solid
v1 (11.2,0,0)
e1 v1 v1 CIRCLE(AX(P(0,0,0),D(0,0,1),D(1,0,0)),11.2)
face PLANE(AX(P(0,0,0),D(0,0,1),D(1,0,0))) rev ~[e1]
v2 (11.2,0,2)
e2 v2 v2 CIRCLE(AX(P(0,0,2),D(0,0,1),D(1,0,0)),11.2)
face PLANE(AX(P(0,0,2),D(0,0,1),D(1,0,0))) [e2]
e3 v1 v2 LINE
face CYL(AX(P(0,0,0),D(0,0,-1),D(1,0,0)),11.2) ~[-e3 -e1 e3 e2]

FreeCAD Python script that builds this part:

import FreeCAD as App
import Part
import Sketcher

V = App.Vector
Q = App.Units.Quantity

doc = App.newDocument("Part")
body = doc.addObject("PartDesign::Body", "Body")

sketch1 = doc.addObject("Sketcher::SketchObject", "Sketch")
body.addObject(sketch1)
sketch1.AttachmentSupport = (doc.XY_Plane, [""])
sketch1.MapMode = "FlatFace"
sketch1.addGeometry(Part.Circle(V(0, 0, 0), V(0, 0, 1), 11), False)
sketch1.addConstraint([
    Sketcher.Constraint("Coincident", 0, 3, -1, 1),
    Sketcher.Constraint("Diameter", 0, Q("22.4 mm")),
])
pad1 = doc.addObject("PartDesign::Pad", "Pad")
body.addObject(pad1)
pad1.Profile = sketch1
pad1.Length = 2

sketch2 = doc.addObject("Sketcher::SketchObject", "Sketch001")
body.addObject(sketch2)
sketch2.AttachmentSupport = (doc.XY_Plane, [""])
sketch2.MapMode = "FlatFace"
sketch2.addGeometry([
    Part.BSplineCurve([V(-5.32056, 4.114055, 0), V(-4.9136, 4.604631, 0), V(-4.431978, 5.163606, 0), V(-3.74498, 6.363862, 0), V(-2.817296, 7.147703, 0), V(-1.461046, 8.003489, 0), V(0.139188, 7.709954, 0), V(2.013984, 7.914835, 0), V(3.572615, 6.835672, 0), V(4.265133, 5.295322, 0), V(6.177492, 4.214494, 0), V(3.998277, 2.478094, 0), V(5.98003, 1.419742, 0), V(5.354911, 0.559563, 0), V(4.709981, 0.405762, 0), V(4.722144, -0.527268, 0), V(3.962618, -0.312855, 0), V(3.442351, -0.645484, 0), V(3.028697, -1.023849, 0), V(2.897748, -1.148103, 0)], [4, 1, 1, 1, 1, 1, 1, 1, 1, 1, 1, 1, 1, 1, 1, 1, 1, 4], [0, 1.604462, 2.601677, 3.999722, 5.254782, 7.230732, 8.614185, 10.871856, 12.176321, 13.916604, 15.63386, 17.349297, 17.831592, 18.401429, 19.196574, 19.631196, 20.321228, 21.054471], False, 3, [1, 1, 1, 1, 1, 1, 1, 1, 1, 1, 1, 1, 1, 1, 1, 1, 1, 1, 1, 1], False),
    Part.BSplineCurve([V(-5.32056, 4.114055, 0), V(-5.373669, 4.067405, 0), V(-5.6112, 3.877572, 0), V(-5.131529, 3.612063, 0), V(-5.104622, 3.111812, 0), V(-4.71233, 2.604329, 0), V(-4.909772, 1.962673, 0), V(-5.298794, 1.506942, 0), V(-5.508954, 1.1214, 0), V(-5.65142, 0.714554, 0), V(-4.840464, 0.627859, 0), V(-4.902599, -0.494451, 0), V(-4.012954, -0.372929, 0), V(-3.402062, -0.766293, 0), V(-2.545645, -1.466922, 0), V(-2.44562, -2.743176, 0), V(-2.091251, -3.941679, 0), V(-1.610238, -5.15645, 0), V(-1.63844, -6.629013, 0), V(-0.665331, -8.35731, 0), V(0.791963, -7.599707, 0), V(0.452235, -7.191626, 0), V(0.661797, -6.972875, 0), V(0.896509, -7.097294, 0), V(1.147996, -6.791451, 0), V(1.542098, -6.679791, 0), V(1.505455, -5.946079, 0), V(1.430337, -4.968646, 0), V(2.138784, -4.137713, 0), V(2.096544, -2.975122, 0), V(2.868059, -2.046085, 0), V(2.540352, -1.20654, 0), V(2.636882, -0.43004, 0), V(2.819441, -0.950554, 0), V(2.897748, -1.148103, 0)], [4, 1, 1, 1, 1, 1, 1, 1, 1, 1, 1, 1, 1, 1, 1, 1, 1, 1, 1, 1, 1, 1, 1, 1, 1, 1, 1, 1, 1, 1, 1, 1, 4], [0, 0.286375, 0.552158, 1.232507, 1.754068, 2.339112, 3.051409, 3.519744, 3.779588, 4.062444, 5.413932, 5.650998, 6.553721, 7.489767, 8.860324, 10.130377, 11.311256, 12.669081, 14.768636, 15.531904, 15.81955, 15.965135, 16.287111, 16.390945, 17.097361, 17.188162, 18.538801, 19.960463, 20.079201, 22.013392, 22.759719, 23.080705, 23.626031], False, 3, [1, 1, 1, 1, 1, 1, 1, 1, 1, 1, 1, 1, 1, 1, 1, 1, 1, 1, 1, 1, 1, 1, 1, 1, 1, 1, 1, 1, 1, 1, 1, 1, 1, 1, 1], False),
    Part.BSplineCurve([V(1.124104, 1.108665, 0), V(1.164475, 1.037634, 0), V(1.314514, 0.8822, 0), V(2.188352, 1.67619, 0), V(2.878039, 2.28551, 0), V(3.795472, 2.329398, 0), V(4.335287, 2.141887, 0), V(3.828308, 1.601768, 0), V(4.103096, 0.895951, 0), V(3.468552, 0.809642, 0), V(3.09901, 0.469469, 0), V(2.56374, 0.142194, 0), V(1.907367, 0.246688, 0), V(1.169629, -0.030109, 0), V(0.987339, 1.349297, 0), V(1.124104, 1.108665, 0)], [4, 1, 1, 1, 1, 1, 1, 1, 1, 1, 1, 1, 1, 4], [0, 0.187947, 0.641377, 2.753625, 3.068192, 3.536295, 3.915843, 4.80239, 4.9918, 5.665765, 6.31646, 6.748381, 7.641441, 8.278152], False, 3, [1, 1, 1, 1, 1, 1, 1, 1, 1, 1, 1, 1, 1, 1, 1, 1], False),
    Part.BSplineCurve([V(-4.266934, 2.02452, 0), V(-4.214918, 2.06648, 0), V(-4.013928, 2.199513, 0), V(-3.4527, 2.374769, 0), V(-2.574913, 1.794119, 0), V(-1.931197, 0.748292, 0), V(-1.183248, 1.205062, 0), V(-1.132917, 0.875217, 0), V(-1.272818, 0.711315, 0), V(-1.239713, 0.342555, 0), V(-1.779314, 0.298167, 0), V(-2.160248, 0.354992, 0), V(-2.367283, 0.128338, 0), V(-2.721332, 0.156808, 0), V(-3.10117, 0.419227, 0), V(-3.573287, 0.53215, 0), V(-3.99886, 1.035132, 0), V(-3.992722, 1.462856, 0), V(-4.327353, 1.975781, 0), V(-4.266934, 2.02452, 0)], [4, 1, 1, 1, 1, 1, 1, 1, 1, 1, 1, 1, 1, 1, 1, 1, 1, 4], [0, 0.201468, 0.723403, 1.635588, 3.212323, 3.415719, 3.646106, 3.884813, 4.082369, 4.612466, 5.062961, 5.220914, 5.466167, 6.024058, 6.618163, 6.854385, 7.918335, 8.152344], False, 3, [1, 1, 1, 1, 1, 1, 1, 1, 1, 1, 1, 1, 1, 1, 1, 1, 1, 1, 1, 1], False),
], False)
sketch2.addConstraint([
    Sketcher.Constraint("Block", 0),
    Sketcher.Constraint("Block", 1),
    Sketcher.Constraint("Block", 2),
    Sketcher.Constraint("Block", 3),
])
pocket1 = doc.addObject("PartDesign::Pocket", "Pocket")
body.addObject(pocket1)
pocket1.Profile = sketch2
pocket1.Length = 25

doc.recompute()
